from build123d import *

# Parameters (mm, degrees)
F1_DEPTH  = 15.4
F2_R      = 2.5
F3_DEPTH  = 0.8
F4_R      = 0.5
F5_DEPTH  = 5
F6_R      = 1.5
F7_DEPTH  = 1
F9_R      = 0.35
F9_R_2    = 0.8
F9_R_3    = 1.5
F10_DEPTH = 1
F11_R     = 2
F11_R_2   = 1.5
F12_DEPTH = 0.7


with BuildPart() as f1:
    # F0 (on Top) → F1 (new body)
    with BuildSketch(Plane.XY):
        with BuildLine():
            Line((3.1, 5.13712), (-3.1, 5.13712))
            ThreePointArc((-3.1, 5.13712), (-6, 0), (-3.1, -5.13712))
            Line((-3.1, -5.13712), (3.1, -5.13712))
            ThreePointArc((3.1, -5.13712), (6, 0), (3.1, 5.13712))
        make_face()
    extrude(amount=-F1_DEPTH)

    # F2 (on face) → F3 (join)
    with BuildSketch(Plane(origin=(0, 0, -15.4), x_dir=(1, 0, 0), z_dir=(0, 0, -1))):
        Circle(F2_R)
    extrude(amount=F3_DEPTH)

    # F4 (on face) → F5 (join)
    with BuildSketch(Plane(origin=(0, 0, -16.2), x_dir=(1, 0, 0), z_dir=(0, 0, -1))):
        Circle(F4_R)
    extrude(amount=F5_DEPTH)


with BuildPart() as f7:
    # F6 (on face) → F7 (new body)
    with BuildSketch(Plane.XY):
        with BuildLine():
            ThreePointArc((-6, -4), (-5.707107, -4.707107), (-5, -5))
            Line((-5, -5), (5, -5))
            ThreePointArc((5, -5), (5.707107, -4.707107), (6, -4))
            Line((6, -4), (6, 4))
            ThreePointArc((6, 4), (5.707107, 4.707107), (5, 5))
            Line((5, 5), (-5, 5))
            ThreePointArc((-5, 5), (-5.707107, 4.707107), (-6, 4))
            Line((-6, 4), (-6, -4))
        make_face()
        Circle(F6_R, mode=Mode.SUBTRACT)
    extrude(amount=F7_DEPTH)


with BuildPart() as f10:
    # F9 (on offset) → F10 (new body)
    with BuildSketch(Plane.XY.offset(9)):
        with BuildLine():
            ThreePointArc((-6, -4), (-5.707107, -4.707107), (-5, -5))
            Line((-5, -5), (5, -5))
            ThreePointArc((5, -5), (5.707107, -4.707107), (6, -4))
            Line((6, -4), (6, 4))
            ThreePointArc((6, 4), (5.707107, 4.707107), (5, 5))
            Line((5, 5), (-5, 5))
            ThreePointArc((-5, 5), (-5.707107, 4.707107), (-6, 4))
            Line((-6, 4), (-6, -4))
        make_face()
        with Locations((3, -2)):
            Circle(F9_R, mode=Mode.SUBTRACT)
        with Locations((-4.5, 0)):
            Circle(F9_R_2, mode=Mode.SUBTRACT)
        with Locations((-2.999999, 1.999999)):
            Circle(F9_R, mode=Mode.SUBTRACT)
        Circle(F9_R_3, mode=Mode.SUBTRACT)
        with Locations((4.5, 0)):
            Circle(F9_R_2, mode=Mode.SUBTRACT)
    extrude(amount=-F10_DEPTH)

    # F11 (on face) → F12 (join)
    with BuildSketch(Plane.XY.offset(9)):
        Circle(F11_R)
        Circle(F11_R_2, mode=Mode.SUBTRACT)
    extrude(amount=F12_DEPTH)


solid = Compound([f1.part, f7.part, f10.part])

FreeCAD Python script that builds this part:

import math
import FreeCAD as App
import Part
import Sketcher
from FreeCAD import Vector
Q = App.Units.Quantity

doc = App.newDocument("Part")
body = doc.addObject("PartDesign::Body", "Body")

# Sketch on XY plane
sketch1 = body.newObject("Sketcher::SketchObject", "Sketch")
sketch1.AttachmentSupport = (doc.getObject("XY_Plane"), [""])
sketch1.MapMode = "FlatFace"
sketch1.addGeometry([
    Part.LineSegment(Vector(3, 5, 0), Vector(-3, 5, 0)),
    Part.ArcOfCircle(Part.Circle(Vector(0, 0, 0), Vector(0, 0, 1), 6), math.radians(121), math.radians(239)),
    Part.LineSegment(Vector(-3, -5, 0), Vector(3, -5, 0)),
    Part.ArcOfCircle(Part.Circle(Vector(0, 0, 0), Vector(0, 0, 1), 6), math.radians(-59), math.radians(59)),
], False)
sketch1.addConstraint([
    Sketcher.Constraint("Coincident", 0, 2, 1, 1),
    Sketcher.Constraint("Coincident", 1, 2, 2, 1),
    Sketcher.Constraint("Coincident", 2, 2, 3, 1),
    Sketcher.Constraint("Coincident", 3, 2, 0, 1),
    Sketcher.Constraint("Horizontal", 0),
    Sketcher.Constraint("Horizontal", 2),
    Sketcher.Constraint("Coincident", 1, 3, -1, 1),
    Sketcher.Constraint("Coincident", 3, 3, -1, 1),
    Sketcher.Constraint("Equal", 1, 3),
    Sketcher.Constraint("Vertical", 0, 2, 1, 2),
    Sketcher.Constraint("Radius", 1, Q("6 mm")),
    Sketcher.Constraint("DistanceX", 0, 2, 0, 1, Q("6.2 mm")),
])
pad1 = body.newObject("PartDesign::Pad", "Pad")
pad1.Profile = sketch1
pad1.Length = 15.4
pad1.Reversed = True

# Sketch on XY plane
sketch2 = body.newObject("Sketcher::SketchObject", "Sketch001")
sketch2.AttachmentSupport = (doc.getObject("XY_Plane"), [""])
sketch2.MapMode = "FlatFace"
sketch2.AttachmentOffset = App.Placement(Vector(0, 0, -15.4), App.Rotation())
sketch2.addGeometry(Part.Circle(Vector(0, 0, 0), Vector(0, 0, 1), 2.5), False)
sketch2.addConstraint([
    Sketcher.Constraint("Coincident", 0, 3, -1, 1),
    Sketcher.Constraint("Diameter", 0, Q("5 mm")),
])
pad2 = body.newObject("PartDesign::Pad", "Pad001")
pad2.Profile = sketch2
pad2.Length = 0.8
pad2.Reversed = True

# Sketch on XY plane
sketch3 = body.newObject("Sketcher::SketchObject", "Sketch002")
sketch3.AttachmentSupport = (doc.getObject("XY_Plane"), [""])
sketch3.MapMode = "FlatFace"
sketch3.AttachmentOffset = App.Placement(Vector(0, 0, -16.2), App.Rotation())
sketch3.addGeometry(Part.Circle(Vector(0, 0, 0), Vector(0, 0, 1), 0.5), False)
sketch3.addConstraint([
    Sketcher.Constraint("Coincident", 0, 3, -1, 1),
    Sketcher.Constraint("Diameter", 0, Q("1 mm")),
])
pad3 = body.newObject("PartDesign::Pad", "Pad002")
pad3.Profile = sketch3
pad3.Length = 5
pad3.Reversed = True
body2 = doc.addObject("PartDesign::Body", "Body001")

# Sketch on XY plane
sketch4 = body2.newObject("Sketcher::SketchObject", "Sketch003")
sketch4.AttachmentSupport = (doc.getObject("XY_Plane001"), [""])
sketch4.MapMode = "FlatFace"
sketch4.addGeometry([
    Part.ArcOfCircle(Part.Circle(Vector(-5, -4, 0), Vector(0, 0, 1), 1), math.radians(180), math.radians(270)),  # 0
    Part.LineSegment(Vector(-5, -5, 0), Vector(5, -5, 0)),  # 1
    Part.ArcOfCircle(Part.Circle(Vector(5, -4, 0), Vector(0, 0, 1), 1), math.radians(-90), math.radians(0)),  # 2
    Part.LineSegment(Vector(6, -4, 0), Vector(6, 4, 0)),  # 3
    Part.ArcOfCircle(Part.Circle(Vector(5, 4, 0), Vector(0, 0, 1), 1), math.radians(0), math.radians(90)),  # 4
    Part.LineSegment(Vector(5, 5, 0), Vector(-5, 5, 0)),  # 5
    Part.ArcOfCircle(Part.Circle(Vector(-5, 4, 0), Vector(0, 0, 1), 1), math.radians(90), math.radians(180)),  # 6
    Part.LineSegment(Vector(-6, 4, 0), Vector(-6, -4, 0)),  # 7
    Part.Circle(Vector(0, 0, 0), Vector(0, 0, 1), 1.5),  # 8
], False)
sketch4.addConstraint([
    Sketcher.Constraint("Tangent", 0, 2, 1, 1),
    Sketcher.Constraint("Tangent", 1, 2, 2, 1),
    Sketcher.Constraint("Tangent", 2, 2, 3, 1),
    Sketcher.Constraint("Tangent", 3, 2, 4, 1),
    Sketcher.Constraint("Tangent", 4, 2, 5, 1),
    Sketcher.Constraint("Tangent", 5, 2, 6, 1),
    Sketcher.Constraint("Tangent", 6, 2, 7, 1),
    Sketcher.Constraint("Tangent", 7, 2, 0, 1),
    Sketcher.Constraint("Horizontal", 1),
    Sketcher.Constraint("Vertical", 3),
    Sketcher.Constraint("Horizontal", 5),
    Sketcher.Constraint("Vertical", 7),
    Sketcher.Constraint("Coincident", 8, 3, -1, 1),
    Sketcher.Constraint("Equal", 0, 2),
    Sketcher.Constraint("Equal", 2, 4),
    Sketcher.Constraint("Equal", 4, 6),
    Sketcher.Constraint("Symmetric", 0, 3, 4, 3, -1, 1),
    Sketcher.Constraint("Diameter", 8, Q("3 mm")),
    Sketcher.Constraint("Radius", 0, Q("0.999999 mm")),
    Sketcher.Constraint("DistanceX", 1, 1, 1, 2, Q("10 mm")),
    Sketcher.Constraint("DistanceY", 3, 1, 3, 2, Q("8 mm")),
])
pad4 = body2.newObject("PartDesign::Pad", "Pad003")
pad4.Profile = sketch4
pad4.Length = 1
body3 = doc.addObject("PartDesign::Body", "Body002")

# Sketch on XY plane
sketch5 = body3.newObject("Sketcher::SketchObject", "Sketch004")
sketch5.AttachmentSupport = (doc.getObject("XY_Plane002"), [""])
sketch5.MapMode = "FlatFace"
sketch5.AttachmentOffset = App.Placement(Vector(0, 0, 9), App.Rotation())
sketch5.addGeometry([
    Part.ArcOfCircle(Part.Circle(Vector(-5, -4, 0), Vector(0, 0, 1), 1), math.radians(180), math.radians(270)),  # 0
    Part.LineSegment(Vector(-5, -5, 0), Vector(5, -5, 0)),  # 1
    Part.ArcOfCircle(Part.Circle(Vector(5, -4, 0), Vector(0, 0, 1), 1), math.radians(-90), math.radians(0)),  # 2
    Part.LineSegment(Vector(6, -4, 0), Vector(6, 4, 0)),  # 3
    Part.ArcOfCircle(Part.Circle(Vector(5, 4, 0), Vector(0, 0, 1), 1), math.radians(0), math.radians(90)),  # 4
    Part.LineSegment(Vector(5, 5, 0), Vector(-5, 5, 0)),  # 5
    Part.ArcOfCircle(Part.Circle(Vector(-5, 4, 0), Vector(0, 0, 1), 1), math.radians(90), math.radians(180)),  # 6
    Part.LineSegment(Vector(-6, 4, 0), Vector(-6, -4, 0)),  # 7
    Part.Circle(Vector(3, -2, 0), Vector(0, 0, 1), 0.35),  # 8
    Part.Circle(Vector(-4.5, 0, 0), Vector(0, 0, 1), 0.8),  # 9
    Part.Circle(Vector(-3, 2, 0), Vector(0, 0, 1), 0.35),  # 10
    Part.Circle(Vector(0, 0, 0), Vector(0, 0, 1), 1.5),  # 11
    Part.Circle(Vector(4.5, 0, 0), Vector(0, 0, 1), 0.8),  # 12
], False)
sketch5.addConstraint([
    Sketcher.Constraint("Tangent", 0, 2, 1, 1),
    Sketcher.Constraint("Tangent", 1, 2, 2, 1),
    Sketcher.Constraint("Tangent", 2, 2, 3, 1),
    Sketcher.Constraint("Tangent", 3, 2, 4, 1),
    Sketcher.Constraint("Tangent", 4, 2, 5, 1),
    Sketcher.Constraint("Tangent", 5, 2, 6, 1),
    Sketcher.Constraint("Tangent", 6, 2, 7, 1),
    Sketcher.Constraint("Tangent", 7, 2, 0, 1),
    Sketcher.Constraint("Horizontal", 1),
    Sketcher.Constraint("Vertical", 3),
    Sketcher.Constraint("Horizontal", 5),
    Sketcher.Constraint("Vertical", 7),
    Sketcher.Constraint("Coincident", 11, 3, -1, 1),
    Sketcher.Constraint("Equal", 0, 2),
    Sketcher.Constraint("Equal", 2, 4),
    Sketcher.Constraint("Equal", 4, 6),
    Sketcher.Constraint("Equal", 8, 10),
    Sketcher.Constraint("Equal", 9, 12),
    Sketcher.Constraint("Symmetric", 0, 3, 4, 3, -1, 1),
    Sketcher.Constraint("Symmetric", 8, 3, 10, 3, -1, 1),
    Sketcher.Constraint("Symmetric", 9, 3, 12, 3, -1, 1),
    Sketcher.Constraint("PointOnObject", 9, 3, -1),
    Sketcher.Constraint("Diameter", 11, Q("3 mm")),
    Sketcher.Constraint("Radius", 0, Q("0.999999 mm")),
    Sketcher.Constraint("Diameter", 8, Q("0.7 mm")),
    Sketcher.Constraint("Diameter", 9, Q("1.6 mm")),
    Sketcher.Constraint("DistanceX", 1, 1, 1, 2, Q("10 mm")),
    Sketcher.Constraint("DistanceY", 3, 1, 3, 2, Q("8 mm")),
    Sketcher.Constraint("DistanceX", -1, 1, 8, 3, Q("3 mm")),
    Sketcher.Constraint("DistanceY", 8, 3, -1, 1, Q("2 mm")),
    Sketcher.Constraint("DistanceX", 9, 3, -1, 1, Q("4.5 mm")),
])
pad5 = body3.newObject("PartDesign::Pad", "Pad004")
pad5.Profile = sketch5
pad5.Length = 1
pad5.Reversed = True

# Sketch on XY plane
sketch6 = body3.newObject("Sketcher::SketchObject", "Sketch005")
sketch6.AttachmentSupport = (doc.getObject("XY_Plane002"), [""])
sketch6.MapMode = "FlatFace"
sketch6.AttachmentOffset = App.Placement(Vector(0, 0, 9), App.Rotation())
sketch6.addGeometry([
    Part.Circle(Vector(0, 0, 0), Vector(0, 0, 1), 2),
    Part.Circle(Vector(0, 0, 0), Vector(0, 0, 1), 1.5),
], False)
sketch6.addConstraint([
    Sketcher.Constraint("Coincident", 0, 3, -1, 1),
    Sketcher.Constraint("Coincident", 1, 3, -1, 1),
    Sketcher.Constraint("Diameter", 0, Q("4 mm")),
    Sketcher.Constraint("Diameter", 1, Q("3 mm")),
])
pad6 = body3.newObject("PartDesign::Pad", "Pad005")
pad6.Profile = sketch6
pad6.Length = 0.7

doc.recompute()
